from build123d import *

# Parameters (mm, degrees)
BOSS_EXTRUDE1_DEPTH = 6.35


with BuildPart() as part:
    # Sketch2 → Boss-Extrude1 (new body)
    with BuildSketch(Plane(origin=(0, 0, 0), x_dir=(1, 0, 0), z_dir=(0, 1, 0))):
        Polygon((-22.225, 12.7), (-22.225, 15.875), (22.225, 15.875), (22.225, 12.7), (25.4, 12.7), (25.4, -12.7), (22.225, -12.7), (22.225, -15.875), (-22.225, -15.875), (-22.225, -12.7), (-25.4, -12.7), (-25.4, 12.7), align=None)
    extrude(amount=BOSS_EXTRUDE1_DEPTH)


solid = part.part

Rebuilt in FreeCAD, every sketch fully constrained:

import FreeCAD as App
import Part
import Sketcher
Q = App.Units.Quantity

doc = App.newDocument("Part")
body = doc.addObject("PartDesign::Body", "Body")

sketch1 = doc.addObject("Sketcher::SketchObject", "Sketch")
body.addObject(sketch1)
sketch1.AttachmentSupport = (doc.XZ_Plane, [""])
sketch1.MapMode = "FlatFace"
sketch1.addGeometry([
    Part.LineSegment(App.Vector(-22.2, -15.9, 0), App.Vector(-22.2, -12.7, 0)),
    Part.LineSegment(App.Vector(-22.2, -12.7, 0), App.Vector(-25.4, -12.7, 0)),
    Part.LineSegment(App.Vector(-25.4, -12.7, 0), App.Vector(-25.4, 12.7, 0)),
    Part.LineSegment(App.Vector(-25.4, 12.7, 0), App.Vector(-22.2, 12.7, 0)),
    Part.LineSegment(App.Vector(-22.2, 12.7, 0), App.Vector(-22.2, 15.9, 0)),
    Part.LineSegment(App.Vector(-22.2, 15.9, 0), App.Vector(22.2, 15.9, 0)),
    Part.LineSegment(App.Vector(22.2, 15.9, 0), App.Vector(22.2, 12.7, 0)),
    Part.LineSegment(App.Vector(22.2, 12.7, 0), App.Vector(25.4, 12.7, 0)),
    Part.LineSegment(App.Vector(25.4, 12.7, 0), App.Vector(25.4, -12.7, 0)),
    Part.LineSegment(App.Vector(25.4, -12.7, 0), App.Vector(22.2, -12.7, 0)),
    Part.LineSegment(App.Vector(22.2, -12.7, 0), App.Vector(22.2, -15.9, 0)),
    Part.LineSegment(App.Vector(22.2, -15.9, 0), App.Vector(-22.2, -15.9, 0)),
], False)
sketch1.addConstraint([
    Sketcher.Constraint("Coincident", 0, 2, 1, 1),
    Sketcher.Constraint("Coincident", 1, 2, 2, 1),
    Sketcher.Constraint("Coincident", 2, 2, 3, 1),
    Sketcher.Constraint("Coincident", 3, 2, 4, 1),
    Sketcher.Constraint("Coincident", 4, 2, 5, 1),
    Sketcher.Constraint("Coincident", 5, 2, 6, 1),
    Sketcher.Constraint("Coincident", 6, 2, 7, 1),
    Sketcher.Constraint("Coincident", 7, 2, 8, 1),
    Sketcher.Constraint("Coincident", 8, 2, 9, 1),
    Sketcher.Constraint("Coincident", 9, 2, 10, 1),
    Sketcher.Constraint("Coincident", 10, 2, 11, 1),
    Sketcher.Constraint("Coincident", 11, 2, 0, 1),
    Sketcher.Constraint("Vertical", 0),
    Sketcher.Constraint("Horizontal", 1),
    Sketcher.Constraint("Vertical", 2),
    Sketcher.Constraint("Horizontal", 3),
    Sketcher.Constraint("Vertical", 4),
    Sketcher.Constraint("Horizontal", 5),
    Sketcher.Constraint("Vertical", 6),
    Sketcher.Constraint("Horizontal", 7),
    Sketcher.Constraint("Vertical", 8),
    Sketcher.Constraint("Horizontal", 9),
    Sketcher.Constraint("Vertical", 10),
    Sketcher.Constraint("Horizontal", 11),
    Sketcher.Constraint("Symmetric", 0, 2, 6, 2, -1, 1),
    Sketcher.Constraint("Symmetric", 2, 2, 8, 2, -1, 1),
    Sketcher.Constraint("Symmetric", 4, 2, 10, 2, -1, 1),
    Sketcher.Constraint("Symmetric", 3, 2, 6, 2, -2),
    Sketcher.Constraint("Equal", 9, 0),
    Sketcher.Constraint("DistanceY", 2, 1, 2, 2, Q("1 in")),
    Sketcher.Constraint("DistanceX", 1, 2, -1, 1, Q("1 in")),
    Sketcher.Constraint("DistanceX", 5, 1, 5, 2, Q("1.75 in")),
])
pad1 = doc.addObject("PartDesign::Pad", "Pad")
body.addObject(pad1)
pad1.Profile = sketch1
pad1.Length = Q("0.25 in")
pad1.Reversed = True

doc.recompute()
